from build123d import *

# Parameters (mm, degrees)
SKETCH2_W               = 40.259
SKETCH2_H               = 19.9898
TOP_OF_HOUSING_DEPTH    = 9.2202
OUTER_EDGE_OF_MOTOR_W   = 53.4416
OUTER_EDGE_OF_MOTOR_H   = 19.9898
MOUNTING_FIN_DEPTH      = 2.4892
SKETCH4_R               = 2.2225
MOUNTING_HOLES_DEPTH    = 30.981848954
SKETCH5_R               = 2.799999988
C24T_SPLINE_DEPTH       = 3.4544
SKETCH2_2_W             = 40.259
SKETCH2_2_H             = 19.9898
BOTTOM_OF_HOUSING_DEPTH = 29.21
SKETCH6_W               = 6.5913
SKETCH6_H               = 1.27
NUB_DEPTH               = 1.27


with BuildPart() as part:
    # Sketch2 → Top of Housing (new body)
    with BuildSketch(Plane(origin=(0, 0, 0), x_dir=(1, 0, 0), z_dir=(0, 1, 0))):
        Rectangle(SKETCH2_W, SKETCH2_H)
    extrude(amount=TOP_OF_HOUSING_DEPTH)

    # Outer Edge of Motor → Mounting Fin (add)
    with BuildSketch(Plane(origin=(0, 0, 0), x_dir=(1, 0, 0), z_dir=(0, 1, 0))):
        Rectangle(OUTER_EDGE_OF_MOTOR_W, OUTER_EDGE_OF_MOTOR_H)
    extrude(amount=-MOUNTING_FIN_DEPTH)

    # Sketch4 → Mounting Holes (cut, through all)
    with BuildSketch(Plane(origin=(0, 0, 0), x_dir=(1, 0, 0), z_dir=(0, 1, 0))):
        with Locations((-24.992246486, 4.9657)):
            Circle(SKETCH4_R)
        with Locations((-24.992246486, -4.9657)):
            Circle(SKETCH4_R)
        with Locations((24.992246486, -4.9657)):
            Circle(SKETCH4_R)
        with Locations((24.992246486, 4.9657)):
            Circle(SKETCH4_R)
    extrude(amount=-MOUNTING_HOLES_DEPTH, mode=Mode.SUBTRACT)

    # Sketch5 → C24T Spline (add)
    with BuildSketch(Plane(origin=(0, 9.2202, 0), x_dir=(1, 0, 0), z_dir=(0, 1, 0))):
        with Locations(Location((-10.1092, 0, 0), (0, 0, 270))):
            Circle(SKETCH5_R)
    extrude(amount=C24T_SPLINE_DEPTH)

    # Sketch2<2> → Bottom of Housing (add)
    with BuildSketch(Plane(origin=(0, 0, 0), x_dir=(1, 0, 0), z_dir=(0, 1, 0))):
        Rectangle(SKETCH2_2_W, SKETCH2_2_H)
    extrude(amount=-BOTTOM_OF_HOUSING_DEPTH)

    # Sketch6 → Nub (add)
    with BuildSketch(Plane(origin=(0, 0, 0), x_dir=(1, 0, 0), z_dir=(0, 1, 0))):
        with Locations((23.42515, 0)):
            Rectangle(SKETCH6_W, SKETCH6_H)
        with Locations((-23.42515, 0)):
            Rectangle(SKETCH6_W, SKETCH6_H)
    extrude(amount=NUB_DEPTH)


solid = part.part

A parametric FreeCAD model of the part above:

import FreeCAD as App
import Part
import Sketcher
Q = App.Units.Quantity


def add_polygon(sketch, points):
    """Adds a closed chain of lines whose ends are joined by coincident constraints."""
    first, n = sketch.GeometryCount, len(points)
    for a, b in zip(points, points[1:] + points[:1]):
        sketch.addGeometry(Part.LineSegment(App.Vector(*a, 0), App.Vector(*b, 0)), False)
    for i in range(n):
        sketch.addConstraint(Sketcher.Constraint("Coincident", first + i, 2, first + (i + 1) % n, 1))

doc = App.newDocument("Part")
params = doc.addObject("Spreadsheet::Sheet", "Params")
for row, (alias, value) in enumerate([
    ("sketch1_width", "1.585 in"),
    ("sketch1_height", "0.787 in"),
    ("pad1_length", "0.363 in"),
    ("sketch2_width", "2.104 in"),
    ("sketch2_height", "0.787 in"),
    ("pad2_length", "0.098 in"),
    ("sketch3_diameter", "0.175 in"),
    ("pad3_length", "0.136 in"),
    ("sketch5_width", "1.585 in"),
    ("sketch5_height", "0.787 in"),
    ("pad4_length", "1.15 in"),
    ("sketch6_height", "0.05 in"),
    ("pad5_length", "0.05 in"),
], start=1):
    params.set(f"A{row}", alias)
    params.set(f"B{row}", "=" + value)
    params.setAlias(f"B{row}", alias)

body = doc.addObject("PartDesign::Body", "Body")

# Sketch on XZ plane
sketch1 = body.newObject("Sketcher::SketchObject", "Sketch")
sketch1.AttachmentSupport = (doc.getObject("XZ_Plane"), [""])
sketch1.MapMode = "FlatFace"
add_polygon(sketch1, [(-20, -10), (-20, 10), (20, 10), (20, -10)])  # lines 0-3
sketch1.addConstraint(Sketcher.Constraint("Vertical", 0))
sketch1.addConstraint(Sketcher.Constraint("Horizontal", 1))
sketch1.addConstraint(Sketcher.Constraint("Vertical", 2))
sketch1.addConstraint(Sketcher.Constraint("Horizontal", 3))
sketch1.addConstraint(Sketcher.Constraint("Symmetric", 0, 2, 2, 2, -1, 1))
sketch1.addConstraint(Sketcher.Constraint("DistanceX", 1, 1, 1, 2, Q("1.585 in")))
sketch1.addConstraint(Sketcher.Constraint("DistanceY", 0, 1, 0, 2, Q("0.787 in")))
sketch1.setExpression("Constraints[9]", "Params.sketch1_width")
sketch1.setExpression("Constraints[10]", "Params.sketch1_height")
pad1 = body.newObject("PartDesign::Pad", "Pad")
pad1.Profile = sketch1
pad1.setExpression("Length", "Params.pad1_length")
pad1.Reversed = True

# Sketch on XZ plane
sketch2 = body.newObject("Sketcher::SketchObject", "Sketch001")
sketch2.AttachmentSupport = (doc.getObject("XZ_Plane"), [""])
sketch2.MapMode = "FlatFace"
add_polygon(sketch2, [(-27, -10), (-27, 10), (27, 10), (27, -10)])  # lines 0-3
sketch2.addConstraint(Sketcher.Constraint("Vertical", 0))
sketch2.addConstraint(Sketcher.Constraint("Horizontal", 1))
sketch2.addConstraint(Sketcher.Constraint("Vertical", 2))
sketch2.addConstraint(Sketcher.Constraint("Horizontal", 3))
sketch2.addConstraint(Sketcher.Constraint("Symmetric", 0, 2, 2, 2, -1, 1))
sketch2.addConstraint(Sketcher.Constraint("DistanceX", 1, 1, 1, 2, Q("2.104 in")))
sketch2.addConstraint(Sketcher.Constraint("DistanceY", 0, 1, 0, 2, Q("0.787 in")))
sketch2.setExpression("Constraints[9]", "Params.sketch2_width")
sketch2.setExpression("Constraints[10]", "Params.sketch2_height")
pad2 = body.newObject("PartDesign::Pad", "Pad001")
pad2.Profile = sketch2
pad2.setExpression("Length", "Params.pad2_length")

# Sketch on XZ plane
sketch3 = body.newObject("Sketcher::SketchObject", "Sketch002")
sketch3.AttachmentSupport = (doc.getObject("XZ_Plane"), [""])
sketch3.MapMode = "FlatFace"
sketch3.addGeometry(Part.Circle(App.Vector(-25, -5, 0), App.Vector(0, 0, 1), 2.2), False)
sketch3.addGeometry(Part.Circle(App.Vector(-25, 5, 0), App.Vector(0, 0, 1), 2.2), False)
sketch3.addGeometry(Part.Circle(App.Vector(25, 5, 0), App.Vector(0, 0, 1), 2.2), False)
sketch3.addGeometry(Part.Circle(App.Vector(25, -5, 0), App.Vector(0, 0, 1), 2.2), False)
sketch3.addConstraint(Sketcher.Constraint("Equal", 0, 1))
sketch3.addConstraint(Sketcher.Constraint("Equal", 1, 2))
sketch3.addConstraint(Sketcher.Constraint("Equal", 2, 3))
sketch3.addConstraint(Sketcher.Constraint("Symmetric", 0, 3, 2, 3, -1, 1))
sketch3.addConstraint(Sketcher.Constraint("Symmetric", 1, 3, 3, 3, -1, 1))
sketch3.addConstraint(Sketcher.Constraint("Symmetric", 1, 3, 2, 3, -2))
sketch3.addConstraint(Sketcher.Constraint("Diameter", 0, Q("0.175 in")))
sketch3.addConstraint(Sketcher.Constraint("DistanceY", 0, 3, 1, 3, Q("0.391 in")))
sketch3.addConstraint(Sketcher.Constraint("DistanceX", 0, 3, -1, 1, Q("24.992246 mm")))
sketch3.setExpression("Constraints[6]", "Params.sketch3_diameter")
pocket1 = body.newObject("PartDesign::Pocket", "Pocket")
pocket1.Profile = sketch3
pocket1.Type = "ThroughAll"
pocket1.Reversed = True

# Sketch on XZ plane
sketch4 = body.newObject("Sketcher::SketchObject", "Sketch003")
sketch4.AttachmentSupport = (doc.getObject("XZ_Plane"), [""])
sketch4.MapMode = "FlatFace"
sketch4.AttachmentOffset = App.Placement(App.Vector(0, 0, -0.363 * 25.4), App.Rotation())
sketch4.addGeometry(Part.Circle(App.Vector(-10.1, 0, 0), App.Vector(0, 0, 1), 2.8), False)
sketch4.addConstraint(Sketcher.Constraint("PointOnObject", 0, 3, -1))
sketch4.addConstraint(Sketcher.Constraint("Diameter", 0, Q("5.6 mm")))
sketch4.addConstraint(Sketcher.Constraint("DistanceX", 0, 3, -1, 1, Q("0.398 in")))
pad3 = body.newObject("PartDesign::Pad", "Pad002")
pad3.Profile = sketch4
pad3.setExpression("Length", "Params.pad3_length")
pad3.Reversed = True

# Sketch on XZ plane
sketch5 = body.newObject("Sketcher::SketchObject", "Sketch004")
sketch5.AttachmentSupport = (doc.getObject("XZ_Plane"), [""])
sketch5.MapMode = "FlatFace"
add_polygon(sketch5, [(-20, -10), (-20, 10), (20, 10), (20, -10)])  # lines 0-3
sketch5.addConstraint(Sketcher.Constraint("Vertical", 0))
sketch5.addConstraint(Sketcher.Constraint("Horizontal", 1))
sketch5.addConstraint(Sketcher.Constraint("Vertical", 2))
sketch5.addConstraint(Sketcher.Constraint("Horizontal", 3))
sketch5.addConstraint(Sketcher.Constraint("Symmetric", 0, 2, 2, 2, -1, 1))
sketch5.addConstraint(Sketcher.Constraint("DistanceX", 1, 1, 1, 2, Q("1.585 in")))
sketch5.addConstraint(Sketcher.Constraint("DistanceY", 0, 1, 0, 2, Q("0.787 in")))
sketch5.setExpression("Constraints[9]", "Params.sketch5_width")
sketch5.setExpression("Constraints[10]", "Params.sketch5_height")
pad4 = body.newObject("PartDesign::Pad", "Pad003")
pad4.Profile = sketch5
pad4.setExpression("Length", "Params.pad4_length")

# Sketch on XZ plane
sketch6 = body.newObject("Sketcher::SketchObject", "Sketch005")
sketch6.AttachmentSupport = (doc.getObject("XZ_Plane"), [""])
sketch6.MapMode = "FlatFace"
add_polygon(sketch6, [(20.1, -0.6), (20.1, 0.6), (26.7, 0.6), (26.7, -0.6)])  # lines 0-3
add_polygon(sketch6, [(-26.7, -0.6), (-26.7, 0.6), (-20.1, 0.6), (-20.1, -0.6)])  # lines 4-7
sketch6.addConstraint(Sketcher.Constraint("Vertical", 0))
sketch6.addConstraint(Sketcher.Constraint("Horizontal", 1))
sketch6.addConstraint(Sketcher.Constraint("Vertical", 2))
sketch6.addConstraint(Sketcher.Constraint("Horizontal", 3))
sketch6.addConstraint(Sketcher.Constraint("Vertical", 4))
sketch6.addConstraint(Sketcher.Constraint("Horizontal", 5))
sketch6.addConstraint(Sketcher.Constraint("Vertical", 6))
sketch6.addConstraint(Sketcher.Constraint("Horizontal", 7))
sketch6.addConstraint(Sketcher.Constraint("Symmetric", 2, 2, 4, 2, -1, 1))
sketch6.addConstraint(Sketcher.Constraint("Symmetric", 0, 2, 6, 2, -1, 1))
sketch6.addConstraint(Sketcher.Constraint("Horizontal", 1, 2, 4, 2))
sketch6.addConstraint(Sketcher.Constraint("DistanceY", 0, 1, 0, 2, Q("0.05 in")))
sketch6.addConstraint(Sketcher.Constraint("DistanceX", 1, 1, 1, 2, Q("0.2595 in")))
sketch6.addConstraint(Sketcher.Constraint("DistanceX", -1, 1, 1, 2, Q("1.052 in")))
sketch6.setExpression("Constraints[19]", "Params.sketch6_height")
pad5 = body.newObject("PartDesign::Pad", "Pad004")
pad5.Profile = sketch6
pad5.setExpression("Length", "Params.pad5_length")
pad5.Reversed = True

doc.recompute()
